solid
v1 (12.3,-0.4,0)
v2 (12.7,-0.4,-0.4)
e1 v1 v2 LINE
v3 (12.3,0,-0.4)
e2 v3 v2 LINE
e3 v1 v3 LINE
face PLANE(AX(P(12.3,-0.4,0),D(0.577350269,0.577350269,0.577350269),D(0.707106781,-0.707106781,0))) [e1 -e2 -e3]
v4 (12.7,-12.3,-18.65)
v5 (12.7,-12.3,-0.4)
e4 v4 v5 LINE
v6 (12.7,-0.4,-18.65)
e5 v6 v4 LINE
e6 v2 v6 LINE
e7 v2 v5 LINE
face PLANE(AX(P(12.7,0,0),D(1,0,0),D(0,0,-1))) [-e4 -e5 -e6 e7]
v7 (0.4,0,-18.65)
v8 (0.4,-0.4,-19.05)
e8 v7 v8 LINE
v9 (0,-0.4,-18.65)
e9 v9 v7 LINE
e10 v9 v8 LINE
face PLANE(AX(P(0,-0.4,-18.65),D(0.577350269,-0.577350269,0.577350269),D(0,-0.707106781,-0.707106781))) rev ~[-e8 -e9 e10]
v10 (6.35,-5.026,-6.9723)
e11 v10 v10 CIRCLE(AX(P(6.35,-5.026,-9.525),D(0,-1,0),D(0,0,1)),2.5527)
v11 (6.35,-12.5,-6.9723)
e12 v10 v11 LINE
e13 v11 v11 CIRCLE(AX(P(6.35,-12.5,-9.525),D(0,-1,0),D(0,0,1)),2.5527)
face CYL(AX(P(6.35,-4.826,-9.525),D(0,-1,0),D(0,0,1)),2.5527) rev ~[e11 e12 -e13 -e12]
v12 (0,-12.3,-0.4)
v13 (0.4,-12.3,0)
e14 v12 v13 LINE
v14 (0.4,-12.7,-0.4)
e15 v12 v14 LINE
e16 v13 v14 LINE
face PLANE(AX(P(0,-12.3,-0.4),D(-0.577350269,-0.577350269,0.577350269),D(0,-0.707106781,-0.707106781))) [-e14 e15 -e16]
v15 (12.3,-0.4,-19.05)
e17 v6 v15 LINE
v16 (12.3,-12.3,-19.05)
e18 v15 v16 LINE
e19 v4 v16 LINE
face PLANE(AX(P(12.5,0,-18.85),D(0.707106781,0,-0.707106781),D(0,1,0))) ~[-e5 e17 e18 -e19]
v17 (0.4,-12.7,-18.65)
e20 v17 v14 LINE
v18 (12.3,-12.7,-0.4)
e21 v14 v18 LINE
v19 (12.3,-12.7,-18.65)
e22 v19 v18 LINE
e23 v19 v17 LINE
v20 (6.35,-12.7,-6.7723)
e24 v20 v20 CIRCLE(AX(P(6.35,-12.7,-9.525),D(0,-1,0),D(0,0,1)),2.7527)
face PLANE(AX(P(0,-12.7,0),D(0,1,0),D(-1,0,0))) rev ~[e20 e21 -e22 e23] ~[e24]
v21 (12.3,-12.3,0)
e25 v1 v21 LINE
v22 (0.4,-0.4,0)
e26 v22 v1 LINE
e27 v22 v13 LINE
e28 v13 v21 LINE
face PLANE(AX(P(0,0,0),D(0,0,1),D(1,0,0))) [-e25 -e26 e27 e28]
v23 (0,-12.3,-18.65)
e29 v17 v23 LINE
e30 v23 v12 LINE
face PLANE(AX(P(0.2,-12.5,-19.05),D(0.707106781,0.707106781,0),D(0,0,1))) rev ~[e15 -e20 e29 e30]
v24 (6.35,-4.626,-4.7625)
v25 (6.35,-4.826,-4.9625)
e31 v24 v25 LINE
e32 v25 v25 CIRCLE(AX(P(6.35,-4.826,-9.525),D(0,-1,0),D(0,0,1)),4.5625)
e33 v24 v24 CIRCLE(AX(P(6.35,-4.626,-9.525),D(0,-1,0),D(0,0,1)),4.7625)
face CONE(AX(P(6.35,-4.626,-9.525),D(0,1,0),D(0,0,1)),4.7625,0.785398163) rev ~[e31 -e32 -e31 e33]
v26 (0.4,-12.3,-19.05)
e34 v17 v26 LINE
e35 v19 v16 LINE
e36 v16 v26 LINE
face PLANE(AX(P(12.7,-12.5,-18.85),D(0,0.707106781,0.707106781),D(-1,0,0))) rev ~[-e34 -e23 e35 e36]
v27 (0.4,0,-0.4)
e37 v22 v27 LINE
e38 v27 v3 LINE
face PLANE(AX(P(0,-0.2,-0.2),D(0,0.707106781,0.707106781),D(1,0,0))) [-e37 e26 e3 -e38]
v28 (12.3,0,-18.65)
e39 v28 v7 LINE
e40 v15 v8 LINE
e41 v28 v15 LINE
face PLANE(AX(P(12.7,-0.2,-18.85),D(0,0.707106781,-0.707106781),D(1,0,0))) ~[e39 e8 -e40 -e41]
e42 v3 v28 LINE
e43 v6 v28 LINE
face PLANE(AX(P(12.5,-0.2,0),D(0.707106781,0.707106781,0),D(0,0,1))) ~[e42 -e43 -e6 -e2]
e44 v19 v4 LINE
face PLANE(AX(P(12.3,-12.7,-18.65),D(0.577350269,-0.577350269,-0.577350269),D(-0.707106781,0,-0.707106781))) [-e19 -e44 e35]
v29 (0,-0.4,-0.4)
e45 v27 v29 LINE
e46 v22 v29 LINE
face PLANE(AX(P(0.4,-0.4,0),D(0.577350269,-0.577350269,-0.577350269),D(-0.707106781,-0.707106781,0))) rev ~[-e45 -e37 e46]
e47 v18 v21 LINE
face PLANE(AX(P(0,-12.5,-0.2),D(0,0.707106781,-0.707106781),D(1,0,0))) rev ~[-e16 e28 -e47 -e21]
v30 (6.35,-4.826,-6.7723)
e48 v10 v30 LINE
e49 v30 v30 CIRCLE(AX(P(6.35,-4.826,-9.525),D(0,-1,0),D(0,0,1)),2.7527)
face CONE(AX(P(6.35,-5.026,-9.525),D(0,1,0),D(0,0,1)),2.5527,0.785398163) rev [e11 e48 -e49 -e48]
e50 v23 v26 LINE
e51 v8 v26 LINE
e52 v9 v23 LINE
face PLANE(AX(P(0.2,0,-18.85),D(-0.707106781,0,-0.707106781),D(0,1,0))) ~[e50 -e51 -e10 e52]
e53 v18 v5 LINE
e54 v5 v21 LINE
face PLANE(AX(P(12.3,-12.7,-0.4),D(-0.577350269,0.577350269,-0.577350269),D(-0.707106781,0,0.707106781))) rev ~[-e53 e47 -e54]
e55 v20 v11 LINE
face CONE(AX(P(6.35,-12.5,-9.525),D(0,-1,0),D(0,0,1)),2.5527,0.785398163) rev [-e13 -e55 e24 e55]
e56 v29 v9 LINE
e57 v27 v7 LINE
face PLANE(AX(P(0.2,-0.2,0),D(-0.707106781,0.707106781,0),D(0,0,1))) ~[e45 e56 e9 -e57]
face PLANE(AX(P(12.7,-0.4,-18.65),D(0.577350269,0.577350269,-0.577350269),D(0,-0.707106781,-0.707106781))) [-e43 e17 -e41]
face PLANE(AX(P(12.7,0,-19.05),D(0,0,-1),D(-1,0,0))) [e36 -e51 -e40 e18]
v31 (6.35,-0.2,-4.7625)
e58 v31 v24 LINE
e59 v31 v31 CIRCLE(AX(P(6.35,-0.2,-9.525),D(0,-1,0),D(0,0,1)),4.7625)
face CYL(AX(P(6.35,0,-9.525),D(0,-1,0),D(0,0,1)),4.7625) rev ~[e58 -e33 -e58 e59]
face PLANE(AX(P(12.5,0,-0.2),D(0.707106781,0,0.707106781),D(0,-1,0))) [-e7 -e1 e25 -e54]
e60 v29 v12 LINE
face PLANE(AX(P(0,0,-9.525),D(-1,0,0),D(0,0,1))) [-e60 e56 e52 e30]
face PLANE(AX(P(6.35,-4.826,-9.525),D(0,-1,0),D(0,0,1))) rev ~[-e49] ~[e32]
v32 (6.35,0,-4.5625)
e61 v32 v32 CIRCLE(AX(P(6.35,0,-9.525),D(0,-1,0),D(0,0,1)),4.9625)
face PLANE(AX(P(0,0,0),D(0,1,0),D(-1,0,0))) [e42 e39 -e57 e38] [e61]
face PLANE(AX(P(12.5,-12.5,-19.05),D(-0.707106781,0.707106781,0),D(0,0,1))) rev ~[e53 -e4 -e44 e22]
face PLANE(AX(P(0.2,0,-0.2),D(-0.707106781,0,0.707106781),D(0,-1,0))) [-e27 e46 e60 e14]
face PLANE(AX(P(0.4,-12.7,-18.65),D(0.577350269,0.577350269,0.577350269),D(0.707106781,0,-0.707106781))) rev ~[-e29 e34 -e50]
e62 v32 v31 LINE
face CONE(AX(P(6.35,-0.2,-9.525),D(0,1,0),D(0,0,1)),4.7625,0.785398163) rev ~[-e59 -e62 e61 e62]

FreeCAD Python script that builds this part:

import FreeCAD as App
import Part
import Sketcher
Q = App.Units.Quantity


def edges_at(feature, points):
    """Names of the edges that pass closest to the given points."""
    edges = feature.Shape.Edges
    near = lambda p: min(range(len(edges)), key=lambda i: edges[i].distToShape(Part.Vertex(*p))[0])
    return sorted({f"Edge{near(p) + 1}" for p in points})


def add_polygon(sketch, points):
    """Adds a closed chain of lines whose ends are joined by coincident constraints."""
    first, n = sketch.GeometryCount, len(points)
    for a, b in zip(points, points[1:] + points[:1]):
        sketch.addGeometry(Part.LineSegment(App.Vector(*a, 0), App.Vector(*b, 0)), False)
    for i in range(n):
        sketch.addConstraint(Sketcher.Constraint("Coincident", first + i, 2, first + (i + 1) % n, 1))

doc = App.newDocument("Part")
body = doc.addObject("PartDesign::Body", "Body")

sketch1 = body.newObject("Sketcher::SketchObject", "Sketch")
sketch1.AttachmentSupport = (doc.getObject("XZ_Plane"), [""])
sketch1.MapMode = "FlatFace"
add_polygon(sketch1, [(0, 0), (13, 0), (13, -19), (0, -19)])
sketch1.addConstraint(Sketcher.Constraint("Horizontal", 0))
sketch1.addConstraint(Sketcher.Constraint("Vertical", 1))
sketch1.addConstraint(Sketcher.Constraint("Horizontal", 2))
sketch1.addConstraint(Sketcher.Constraint("Vertical", 3))
sketch1.addConstraint(Sketcher.Constraint("Coincident", 3, 2, -1, 1))
sketch1.addConstraint(Sketcher.Constraint("DistanceX", 0, 1, 0, 2, Q("0.5 in")))
sketch1.addConstraint(Sketcher.Constraint("DistanceY", 1, 2, 1, 1, Q("0.75 in")))
pad1 = body.newObject("PartDesign::Pad", "Pad")
pad1.Profile = sketch1
pad1.Length = Q("0.5 in")

sketch2 = body.newObject("Sketcher::SketchObject", "Sketch001")
sketch2.AttachmentSupport = (doc.getObject("XZ_Plane"), [""])
sketch2.MapMode = "FlatFace"
sketch2.addGeometry(Part.Circle(App.Vector(6.3, -9.5, 0), App.Vector(0, 0, 1), 2.6), False)
sketch2.addConstraint(Sketcher.Constraint("Diameter", 0, Q("0.201 in")))
sketch2.addConstraint(Sketcher.Constraint("DistanceX", -1, 1, 0, 3, Q("0.25 in")))
sketch2.addConstraint(Sketcher.Constraint("DistanceY", 0, 3, -1, 1, Q("0.375 in")))
doc.recompute()
hole = body.newObject("PartDesign::Hole", "Hole")
hole.Profile = sketch2
hole.ThreadType = "None"
hole.Diameter = Q("0.201 in")
hole.DepthType = "ThroughAll"
hole.HoleCutType = "Counterbore"
hole.HoleCutDiameter = Q("0.375 in")
hole.HoleCutDepth = Q("0.19 in")
hole.Reversed = True
doc.recompute()

chamfer = body.newObject("PartDesign::Chamfer", "Chamfer")
chamfer.Base = (hole, edges_at(hole, [
    (6.35, 0, -19.05),
    (12.7, 0, -9.525),
    (0, 0, -9.525),
    (6.35, 0, 0),
    (12.7, -6.35, 0),
    (12.7, -6.35, -19.05),
    (12.7, -12.7, -9.525),
    (6.35, -12.7, 0),
    (0, -6.35, 0),
    (0, -6.35, -19.05),
    (0, -12.7, -9.525),
    (6.35, -12.7, -19.05),
]))
chamfer.Size = 0.4
doc.recompute()

chamfer2 = body.newObject("PartDesign::Chamfer", "Chamfer001")
chamfer2.Base = (chamfer, edges_at(chamfer, [
    (6.35, 0, -14.287),
    (6.35, -12.7, -12.078),
    (6.35, -4.826, -14.287),
    (6.35, -4.826, -12.078),
]))
chamfer2.Size = 0.2

doc.recompute()
